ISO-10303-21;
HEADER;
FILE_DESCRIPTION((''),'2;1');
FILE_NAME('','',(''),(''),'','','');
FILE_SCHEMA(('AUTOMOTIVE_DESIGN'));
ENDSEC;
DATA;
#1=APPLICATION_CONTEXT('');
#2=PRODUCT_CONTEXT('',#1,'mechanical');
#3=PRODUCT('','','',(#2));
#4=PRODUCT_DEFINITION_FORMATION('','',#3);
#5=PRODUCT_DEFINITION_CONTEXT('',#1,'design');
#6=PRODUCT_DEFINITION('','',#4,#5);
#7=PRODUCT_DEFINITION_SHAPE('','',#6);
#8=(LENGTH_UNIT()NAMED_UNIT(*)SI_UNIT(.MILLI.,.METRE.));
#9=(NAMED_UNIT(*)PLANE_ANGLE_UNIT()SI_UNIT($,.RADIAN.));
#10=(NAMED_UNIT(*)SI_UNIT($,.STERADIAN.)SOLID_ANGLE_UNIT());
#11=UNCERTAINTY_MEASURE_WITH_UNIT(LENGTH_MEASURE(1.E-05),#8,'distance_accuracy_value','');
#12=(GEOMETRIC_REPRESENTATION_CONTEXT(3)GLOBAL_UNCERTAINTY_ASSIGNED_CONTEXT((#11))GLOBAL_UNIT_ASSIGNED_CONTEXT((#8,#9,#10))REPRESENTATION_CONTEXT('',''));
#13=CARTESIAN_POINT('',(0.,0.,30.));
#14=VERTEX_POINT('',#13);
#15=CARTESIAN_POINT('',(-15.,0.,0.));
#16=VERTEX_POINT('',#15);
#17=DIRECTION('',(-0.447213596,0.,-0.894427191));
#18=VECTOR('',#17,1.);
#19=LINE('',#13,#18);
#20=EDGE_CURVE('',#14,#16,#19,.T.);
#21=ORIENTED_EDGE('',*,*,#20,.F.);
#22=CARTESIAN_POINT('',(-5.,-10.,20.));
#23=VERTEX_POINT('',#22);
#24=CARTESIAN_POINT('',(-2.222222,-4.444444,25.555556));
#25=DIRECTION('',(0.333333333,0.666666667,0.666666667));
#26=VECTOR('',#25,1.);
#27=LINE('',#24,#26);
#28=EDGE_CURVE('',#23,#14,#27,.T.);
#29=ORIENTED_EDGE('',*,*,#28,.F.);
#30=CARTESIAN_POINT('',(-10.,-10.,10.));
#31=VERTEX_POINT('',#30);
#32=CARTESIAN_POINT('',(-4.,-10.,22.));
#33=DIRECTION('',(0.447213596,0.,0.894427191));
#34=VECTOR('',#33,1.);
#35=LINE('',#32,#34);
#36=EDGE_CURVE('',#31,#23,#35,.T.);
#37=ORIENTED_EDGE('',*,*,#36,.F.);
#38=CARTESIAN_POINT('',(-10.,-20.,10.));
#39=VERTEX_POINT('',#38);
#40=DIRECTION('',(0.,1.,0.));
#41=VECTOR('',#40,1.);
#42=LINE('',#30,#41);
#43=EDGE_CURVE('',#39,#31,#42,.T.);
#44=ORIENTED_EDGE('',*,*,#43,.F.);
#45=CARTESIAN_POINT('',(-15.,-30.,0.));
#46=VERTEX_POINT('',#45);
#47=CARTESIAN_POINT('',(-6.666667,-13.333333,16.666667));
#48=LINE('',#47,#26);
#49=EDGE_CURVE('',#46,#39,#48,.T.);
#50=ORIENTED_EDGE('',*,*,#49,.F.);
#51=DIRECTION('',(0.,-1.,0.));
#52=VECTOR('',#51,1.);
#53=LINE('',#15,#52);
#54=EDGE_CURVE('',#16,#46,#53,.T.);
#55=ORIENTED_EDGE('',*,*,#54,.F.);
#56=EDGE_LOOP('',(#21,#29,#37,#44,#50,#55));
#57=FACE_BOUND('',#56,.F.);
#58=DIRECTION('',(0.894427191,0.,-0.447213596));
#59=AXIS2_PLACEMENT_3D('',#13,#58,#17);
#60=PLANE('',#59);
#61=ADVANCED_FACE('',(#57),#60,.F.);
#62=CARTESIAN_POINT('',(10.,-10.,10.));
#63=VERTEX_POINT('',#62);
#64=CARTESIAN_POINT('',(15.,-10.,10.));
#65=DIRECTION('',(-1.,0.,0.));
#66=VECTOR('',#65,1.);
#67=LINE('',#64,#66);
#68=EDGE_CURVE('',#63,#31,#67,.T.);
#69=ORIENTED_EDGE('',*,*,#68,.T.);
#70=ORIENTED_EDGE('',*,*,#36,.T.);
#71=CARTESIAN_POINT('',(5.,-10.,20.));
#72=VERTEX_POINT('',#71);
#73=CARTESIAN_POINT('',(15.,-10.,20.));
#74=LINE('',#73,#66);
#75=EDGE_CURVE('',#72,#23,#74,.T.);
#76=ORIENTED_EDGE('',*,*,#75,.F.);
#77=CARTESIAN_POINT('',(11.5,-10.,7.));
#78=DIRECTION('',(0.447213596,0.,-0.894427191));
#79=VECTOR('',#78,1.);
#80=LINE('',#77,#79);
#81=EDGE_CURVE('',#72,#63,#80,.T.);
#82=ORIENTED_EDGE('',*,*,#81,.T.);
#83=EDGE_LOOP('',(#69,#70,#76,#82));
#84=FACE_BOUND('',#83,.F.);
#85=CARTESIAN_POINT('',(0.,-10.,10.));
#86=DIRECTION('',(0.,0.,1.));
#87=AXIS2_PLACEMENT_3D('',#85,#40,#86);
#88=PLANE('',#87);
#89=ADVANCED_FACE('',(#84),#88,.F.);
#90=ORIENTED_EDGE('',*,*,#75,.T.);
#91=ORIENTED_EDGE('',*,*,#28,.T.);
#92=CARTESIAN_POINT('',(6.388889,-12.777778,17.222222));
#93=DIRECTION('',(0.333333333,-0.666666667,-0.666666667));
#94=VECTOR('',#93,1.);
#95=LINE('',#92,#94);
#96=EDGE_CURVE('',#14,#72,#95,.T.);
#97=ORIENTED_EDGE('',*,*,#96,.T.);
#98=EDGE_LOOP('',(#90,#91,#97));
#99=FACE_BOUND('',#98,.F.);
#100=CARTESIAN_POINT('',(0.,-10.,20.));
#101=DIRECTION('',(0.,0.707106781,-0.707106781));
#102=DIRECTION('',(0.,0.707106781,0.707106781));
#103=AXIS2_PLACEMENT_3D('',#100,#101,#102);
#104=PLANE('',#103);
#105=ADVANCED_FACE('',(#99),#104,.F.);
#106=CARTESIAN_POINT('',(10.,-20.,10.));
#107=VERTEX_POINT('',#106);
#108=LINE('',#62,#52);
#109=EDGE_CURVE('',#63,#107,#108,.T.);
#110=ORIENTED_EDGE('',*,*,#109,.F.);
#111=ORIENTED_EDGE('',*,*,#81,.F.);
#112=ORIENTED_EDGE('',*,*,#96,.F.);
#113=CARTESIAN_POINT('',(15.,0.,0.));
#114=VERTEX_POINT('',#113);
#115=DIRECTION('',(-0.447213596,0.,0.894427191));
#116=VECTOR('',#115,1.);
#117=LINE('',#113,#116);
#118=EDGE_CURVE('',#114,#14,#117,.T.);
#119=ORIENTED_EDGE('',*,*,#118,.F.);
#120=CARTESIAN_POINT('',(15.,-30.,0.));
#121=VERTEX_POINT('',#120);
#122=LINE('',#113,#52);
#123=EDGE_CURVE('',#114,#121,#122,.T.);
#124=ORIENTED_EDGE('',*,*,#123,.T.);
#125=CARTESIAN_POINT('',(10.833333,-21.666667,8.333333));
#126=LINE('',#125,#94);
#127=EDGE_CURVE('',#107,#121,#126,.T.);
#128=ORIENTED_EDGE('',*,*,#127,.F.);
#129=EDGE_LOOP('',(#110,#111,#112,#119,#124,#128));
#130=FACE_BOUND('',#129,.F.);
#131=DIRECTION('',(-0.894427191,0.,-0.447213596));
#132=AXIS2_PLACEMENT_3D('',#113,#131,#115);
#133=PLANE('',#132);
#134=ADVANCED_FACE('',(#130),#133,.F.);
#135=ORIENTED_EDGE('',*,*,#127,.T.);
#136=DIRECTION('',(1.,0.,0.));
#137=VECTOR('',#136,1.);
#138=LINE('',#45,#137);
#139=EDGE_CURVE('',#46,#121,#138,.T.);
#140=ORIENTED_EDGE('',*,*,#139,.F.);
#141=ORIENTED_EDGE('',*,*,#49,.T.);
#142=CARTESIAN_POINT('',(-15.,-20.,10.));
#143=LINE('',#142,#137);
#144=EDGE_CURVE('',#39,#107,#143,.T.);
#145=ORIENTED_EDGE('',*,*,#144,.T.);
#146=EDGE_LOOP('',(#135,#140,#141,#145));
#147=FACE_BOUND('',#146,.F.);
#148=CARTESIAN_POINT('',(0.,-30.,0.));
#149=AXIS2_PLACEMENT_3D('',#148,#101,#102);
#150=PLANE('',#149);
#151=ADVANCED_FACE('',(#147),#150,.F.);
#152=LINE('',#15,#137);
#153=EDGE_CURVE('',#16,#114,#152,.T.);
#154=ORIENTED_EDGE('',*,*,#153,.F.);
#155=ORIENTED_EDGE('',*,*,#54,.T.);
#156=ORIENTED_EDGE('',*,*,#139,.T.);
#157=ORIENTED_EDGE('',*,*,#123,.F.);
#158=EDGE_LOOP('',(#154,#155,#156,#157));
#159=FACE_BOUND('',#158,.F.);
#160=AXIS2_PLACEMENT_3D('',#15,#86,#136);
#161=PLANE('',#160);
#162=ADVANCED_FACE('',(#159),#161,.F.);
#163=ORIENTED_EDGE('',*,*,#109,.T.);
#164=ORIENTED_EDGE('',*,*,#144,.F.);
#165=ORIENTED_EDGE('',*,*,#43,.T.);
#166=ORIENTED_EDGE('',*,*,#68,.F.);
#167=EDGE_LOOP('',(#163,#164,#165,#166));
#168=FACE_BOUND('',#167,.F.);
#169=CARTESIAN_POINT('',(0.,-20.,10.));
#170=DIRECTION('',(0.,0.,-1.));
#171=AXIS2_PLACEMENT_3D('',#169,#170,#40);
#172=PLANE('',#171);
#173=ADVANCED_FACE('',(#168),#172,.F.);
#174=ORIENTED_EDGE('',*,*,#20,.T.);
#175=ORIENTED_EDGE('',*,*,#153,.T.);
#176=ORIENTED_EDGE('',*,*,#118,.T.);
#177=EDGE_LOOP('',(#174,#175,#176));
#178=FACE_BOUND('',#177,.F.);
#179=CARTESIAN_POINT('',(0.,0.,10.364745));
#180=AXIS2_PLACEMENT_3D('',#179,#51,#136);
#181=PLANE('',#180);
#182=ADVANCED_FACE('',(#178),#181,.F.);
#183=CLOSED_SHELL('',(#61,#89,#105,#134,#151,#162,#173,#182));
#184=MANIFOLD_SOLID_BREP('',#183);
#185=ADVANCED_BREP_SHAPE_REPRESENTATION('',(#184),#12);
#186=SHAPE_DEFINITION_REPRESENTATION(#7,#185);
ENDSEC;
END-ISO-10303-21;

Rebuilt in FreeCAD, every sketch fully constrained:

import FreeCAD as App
import Part
import Sketcher

V = App.Vector
Q = App.Units.Quantity


def add_polygon(sketch, points):
    """Adds a closed chain of lines whose ends are joined by coincident constraints."""
    first, n = sketch.GeometryCount, len(points)
    for a, b in zip(points, points[1:] + points[:1]):
        sketch.addGeometry(Part.LineSegment(App.Vector(*a, 0), App.Vector(*b, 0)), False)
    for i in range(n):
        sketch.addConstraint(Sketcher.Constraint("Coincident", first + i, 2, first + (i + 1) % n, 1))

doc = App.newDocument("Part")
body = doc.addObject("PartDesign::Body", "Body")

# Sketch on XZ plane
sketch1 = body.newObject("Sketcher::SketchObject", "Sketch")
sketch1.AttachmentSupport = (doc.getObject("XZ_Plane"), [""])
sketch1.MapMode = "FlatFace"
add_polygon(sketch1, [(0, 30), (-15, 0), (15, 0)])  # lines 0-2
sketch1.addConstraint([
    Sketcher.Constraint("Horizontal", 1),
    Sketcher.Constraint("Symmetric", 0, 2, 1, 2, -1, 1),
    Sketcher.Constraint("PointOnObject", 2, 2, -2),
    Sketcher.Constraint("DistanceX", 1, 1, 1, 2, Q("30 mm")),
    Sketcher.Constraint("DistanceY", -1, 1, 2, 2, Q("30 mm")),
])
pad1 = body.newObject("PartDesign::Pad", "Pad")
pad1.Profile = sketch1
pad1.Length = 30

# Sketch on YZ plane
sketch2 = body.newObject("Sketcher::SketchObject", "Sketch001")
sketch2.AttachmentSupport = (doc.getObject("YZ_Plane"), [""])
sketch2.MapMode = "FlatFace"
add_polygon(sketch2, [(0, 30), (-30, 30), (-30, 0), (-20, 10), (-10, 10), (-10, 20)])  # lines 0-5
sketch2.addConstraint([
    Sketcher.Constraint("Horizontal", 0),
    Sketcher.Constraint("Vertical", 1),
    Sketcher.Constraint("Horizontal", 3),
    Sketcher.Constraint("Vertical", 4),
    Sketcher.Constraint("PointOnObject", 1, 2, -1),
    Sketcher.Constraint("PointOnObject", 5, 2, -2),
    Sketcher.Constraint("Parallel", 2, 5),
    Sketcher.Constraint("Equal", 0, 1),
    Sketcher.Constraint("Equal", 3, 4),
    Sketcher.Constraint("Equal", 2, 5),
    Sketcher.Constraint("DistanceX", 0, 2, 0, 1, Q("30 mm")),
    Sketcher.Constraint("DistanceX", 3, 1, 3, 2, Q("10 mm")),
])
pocket1 = body.newObject("PartDesign::Pocket", "Pocket")
pocket1.Profile = sketch2
pocket1.Length = 30
pocket1.Midplane = True

doc.recompute()
